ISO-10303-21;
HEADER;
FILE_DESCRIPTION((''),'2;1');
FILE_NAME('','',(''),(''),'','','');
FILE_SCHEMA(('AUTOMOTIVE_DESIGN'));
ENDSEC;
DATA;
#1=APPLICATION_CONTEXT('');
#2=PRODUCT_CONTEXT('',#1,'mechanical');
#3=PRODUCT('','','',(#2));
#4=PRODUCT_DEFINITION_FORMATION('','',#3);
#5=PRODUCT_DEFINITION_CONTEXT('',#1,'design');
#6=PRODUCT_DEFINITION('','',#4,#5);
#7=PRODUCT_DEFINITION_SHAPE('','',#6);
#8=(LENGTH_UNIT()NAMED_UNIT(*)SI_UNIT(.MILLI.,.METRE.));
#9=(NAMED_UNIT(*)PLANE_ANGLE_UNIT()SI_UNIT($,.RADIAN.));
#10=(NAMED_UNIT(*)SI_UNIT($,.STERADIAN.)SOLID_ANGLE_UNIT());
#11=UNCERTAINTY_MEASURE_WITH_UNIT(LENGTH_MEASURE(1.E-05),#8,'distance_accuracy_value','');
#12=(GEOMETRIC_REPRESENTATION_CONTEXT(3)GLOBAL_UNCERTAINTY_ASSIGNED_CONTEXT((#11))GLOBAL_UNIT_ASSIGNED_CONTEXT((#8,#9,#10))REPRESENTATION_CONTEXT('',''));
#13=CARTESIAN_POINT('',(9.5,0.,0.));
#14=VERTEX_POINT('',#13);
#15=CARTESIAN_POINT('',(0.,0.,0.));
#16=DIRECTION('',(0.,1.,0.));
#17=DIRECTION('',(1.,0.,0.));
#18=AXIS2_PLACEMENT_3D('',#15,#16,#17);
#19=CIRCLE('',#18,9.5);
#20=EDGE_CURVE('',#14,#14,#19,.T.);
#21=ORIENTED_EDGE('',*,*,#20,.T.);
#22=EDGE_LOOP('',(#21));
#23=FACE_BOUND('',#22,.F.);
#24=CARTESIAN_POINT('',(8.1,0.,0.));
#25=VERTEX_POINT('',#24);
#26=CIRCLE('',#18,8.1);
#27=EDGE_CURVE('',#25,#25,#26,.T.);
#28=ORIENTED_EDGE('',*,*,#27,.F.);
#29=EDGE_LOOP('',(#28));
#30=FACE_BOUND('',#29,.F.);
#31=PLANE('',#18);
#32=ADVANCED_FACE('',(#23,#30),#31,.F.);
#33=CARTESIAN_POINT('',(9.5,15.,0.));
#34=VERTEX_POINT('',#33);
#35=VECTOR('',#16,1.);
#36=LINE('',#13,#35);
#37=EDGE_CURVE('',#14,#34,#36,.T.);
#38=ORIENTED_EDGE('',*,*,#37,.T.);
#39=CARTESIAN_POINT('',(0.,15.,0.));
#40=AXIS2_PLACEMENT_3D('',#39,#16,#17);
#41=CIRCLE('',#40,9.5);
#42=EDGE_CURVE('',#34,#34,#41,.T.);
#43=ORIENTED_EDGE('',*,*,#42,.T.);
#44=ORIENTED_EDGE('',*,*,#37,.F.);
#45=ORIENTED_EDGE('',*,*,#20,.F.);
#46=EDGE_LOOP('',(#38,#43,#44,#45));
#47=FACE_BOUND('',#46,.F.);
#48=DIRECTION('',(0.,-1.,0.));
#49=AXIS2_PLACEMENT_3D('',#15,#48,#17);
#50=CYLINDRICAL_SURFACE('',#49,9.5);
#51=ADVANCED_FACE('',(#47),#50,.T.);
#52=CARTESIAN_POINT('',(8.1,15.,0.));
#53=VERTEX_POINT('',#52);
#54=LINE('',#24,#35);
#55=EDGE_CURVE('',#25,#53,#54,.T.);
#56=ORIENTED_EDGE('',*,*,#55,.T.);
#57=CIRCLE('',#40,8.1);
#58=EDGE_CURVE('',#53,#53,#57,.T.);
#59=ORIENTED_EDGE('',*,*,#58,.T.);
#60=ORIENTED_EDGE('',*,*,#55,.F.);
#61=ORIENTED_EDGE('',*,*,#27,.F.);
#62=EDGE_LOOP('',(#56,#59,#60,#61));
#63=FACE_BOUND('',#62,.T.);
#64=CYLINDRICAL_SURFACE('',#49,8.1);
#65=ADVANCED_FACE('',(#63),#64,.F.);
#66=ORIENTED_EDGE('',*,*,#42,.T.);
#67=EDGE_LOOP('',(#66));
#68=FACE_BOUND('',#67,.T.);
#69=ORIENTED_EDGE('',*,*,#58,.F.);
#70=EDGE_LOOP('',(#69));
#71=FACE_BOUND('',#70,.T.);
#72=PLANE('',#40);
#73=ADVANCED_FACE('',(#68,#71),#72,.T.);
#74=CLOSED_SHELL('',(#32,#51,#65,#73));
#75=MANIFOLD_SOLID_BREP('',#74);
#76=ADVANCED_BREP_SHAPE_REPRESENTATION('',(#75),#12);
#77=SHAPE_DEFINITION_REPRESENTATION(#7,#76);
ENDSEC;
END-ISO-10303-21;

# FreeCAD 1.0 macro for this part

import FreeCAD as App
import Part
import Sketcher

V = App.Vector
Q = App.Units.Quantity

doc = App.newDocument("Part")
body = doc.addObject("PartDesign::Body", "Body")

# Sketch on XZ plane
sketch1 = body.newObject("Sketcher::SketchObject", "Sketch")
sketch1.AttachmentSupport = (doc.getObject("XZ_Plane"), [""])
sketch1.MapMode = "FlatFace"
sketch1.addGeometry([
    Part.Circle(V(0, 0, 0), V(0, 0, 1), 10),
    Part.Circle(V(0, 0, 0), V(0, 0, 1), 8),
], False)
sketch1.addConstraint([
    Sketcher.Constraint("Coincident", 0, 3, -1, 1),
    Sketcher.Constraint("Coincident", 1, 3, -1, 1),
    Sketcher.Constraint("Diameter", 0, Q("19 mm")),
    Sketcher.Constraint("Diameter", 1, Q("16.2 mm")),
])
pad1 = body.newObject("PartDesign::Pad", "Pad")
pad1.Profile = sketch1
pad1.Length = 15
pad1.Reversed = True

doc.recompute()
